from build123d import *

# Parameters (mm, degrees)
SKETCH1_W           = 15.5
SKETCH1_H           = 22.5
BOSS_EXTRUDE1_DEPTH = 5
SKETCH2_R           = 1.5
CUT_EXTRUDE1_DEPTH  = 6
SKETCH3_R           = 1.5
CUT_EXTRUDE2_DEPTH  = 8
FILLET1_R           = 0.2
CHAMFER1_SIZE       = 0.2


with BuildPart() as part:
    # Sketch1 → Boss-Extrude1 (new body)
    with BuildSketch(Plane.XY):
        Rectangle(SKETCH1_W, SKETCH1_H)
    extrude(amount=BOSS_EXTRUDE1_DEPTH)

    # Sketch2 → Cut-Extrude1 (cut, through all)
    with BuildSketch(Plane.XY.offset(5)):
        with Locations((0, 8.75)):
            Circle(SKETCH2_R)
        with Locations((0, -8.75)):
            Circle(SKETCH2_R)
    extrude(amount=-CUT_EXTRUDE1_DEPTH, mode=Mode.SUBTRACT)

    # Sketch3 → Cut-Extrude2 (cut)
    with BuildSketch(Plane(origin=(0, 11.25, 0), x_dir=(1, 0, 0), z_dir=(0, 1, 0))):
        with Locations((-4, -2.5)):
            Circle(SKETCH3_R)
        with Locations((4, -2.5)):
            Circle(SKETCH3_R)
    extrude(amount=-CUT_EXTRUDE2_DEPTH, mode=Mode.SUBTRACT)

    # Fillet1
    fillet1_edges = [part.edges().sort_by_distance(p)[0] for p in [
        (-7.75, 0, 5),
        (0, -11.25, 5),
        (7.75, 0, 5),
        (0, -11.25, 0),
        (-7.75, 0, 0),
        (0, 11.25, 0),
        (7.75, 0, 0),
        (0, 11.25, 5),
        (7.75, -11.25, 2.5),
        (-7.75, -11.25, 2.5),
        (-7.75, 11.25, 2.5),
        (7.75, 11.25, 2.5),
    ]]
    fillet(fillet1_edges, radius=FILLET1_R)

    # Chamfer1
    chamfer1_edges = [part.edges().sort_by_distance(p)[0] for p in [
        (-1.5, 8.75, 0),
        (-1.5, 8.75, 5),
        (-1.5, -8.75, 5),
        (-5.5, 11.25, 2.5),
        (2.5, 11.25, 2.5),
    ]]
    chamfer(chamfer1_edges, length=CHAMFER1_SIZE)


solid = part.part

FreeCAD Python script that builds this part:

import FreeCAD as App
import Part
import Sketcher

V = App.Vector
Q = App.Units.Quantity


def edges_at(feature, points):
    """Names of the edges that pass closest to the given points."""
    edges = feature.Shape.Edges
    near = lambda p: min(range(len(edges)), key=lambda i: edges[i].distToShape(Part.Vertex(*p))[0])
    return sorted({f"Edge{near(p) + 1}" for p in points})

doc = App.newDocument("Part")
body = doc.addObject("PartDesign::Body", "Body")

sketch1 = body.newObject("Sketcher::SketchObject", "Sketch")
sketch1.AttachmentSupport = (doc.getObject("XY_Plane"), [""])
sketch1.MapMode = "FlatFace"
sketch1.addGeometry(Part.LineSegment(V(-7.75, 11.25, 0), V(-7.75, -11.25, 0)), False)
sketch1.addGeometry(Part.LineSegment(V(-7.75, -11.25, 0), V(7.75, -11.25, 0)), False)
sketch1.addGeometry(Part.LineSegment(V(7.75, -11.25, 0), V(7.75, 11.25, 0)), False)
sketch1.addGeometry(Part.LineSegment(V(7.75, 11.25, 0), V(-7.75, 11.25, 0)), False)
sketch1.addConstraint(Sketcher.Constraint("Coincident", 0, 2, 1, 1))
sketch1.addConstraint(Sketcher.Constraint("Coincident", 1, 2, 2, 1))
sketch1.addConstraint(Sketcher.Constraint("Coincident", 2, 2, 3, 1))
sketch1.addConstraint(Sketcher.Constraint("Coincident", 3, 2, 0, 1))
sketch1.addConstraint(Sketcher.Constraint("Vertical", 0))
sketch1.addConstraint(Sketcher.Constraint("Horizontal", 1))
sketch1.addConstraint(Sketcher.Constraint("Vertical", 2))
sketch1.addConstraint(Sketcher.Constraint("Horizontal", 3))
sketch1.addConstraint(Sketcher.Constraint("Symmetric", 0, 2, 2, 2, -1, 1))
sketch1.addConstraint(Sketcher.Constraint("DistanceX", 1, 1, 1, 2, Q("15.5 mm")))
sketch1.addConstraint(Sketcher.Constraint("DistanceY", 0, 2, 0, 1, Q("22.5 mm")))
pad1 = body.newObject("PartDesign::Pad", "Pad")
pad1.Profile = sketch1
pad1.Length = 5

sketch2 = body.newObject("Sketcher::SketchObject", "Sketch001")
sketch2.AttachmentSupport = (doc.getObject("XY_Plane"), [""])
sketch2.MapMode = "FlatFace"
sketch2.AttachmentOffset = App.Placement(V(0, 0, 5), App.Rotation())
sketch2.addGeometry(Part.Circle(V(0, 8.75, 0), V(0, 0, 1), 1.5), False)
sketch2.addGeometry(Part.Circle(V(0, -8.75, 0), V(0, 0, 1), 1.5), False)
sketch2.addConstraint(Sketcher.Constraint("Equal", 0, 1))
sketch2.addConstraint(Sketcher.Constraint("Symmetric", 0, 3, 1, 3, -1, 1))
sketch2.addConstraint(Sketcher.Constraint("PointOnObject", 0, 3, -2))
sketch2.addConstraint(Sketcher.Constraint("Diameter", 0, Q("3 mm")))
sketch2.addConstraint(Sketcher.Constraint("DistanceY", 1, 3, 0, 3, Q("17.5 mm")))
pocket1 = body.newObject("PartDesign::Pocket", "Pocket")
pocket1.Profile = sketch2
pocket1.Type = "ThroughAll"

sketch3 = body.newObject("Sketcher::SketchObject", "Sketch002")
sketch3.AttachmentSupport = (doc.getObject("XZ_Plane"), [""])
sketch3.MapMode = "FlatFace"
sketch3.AttachmentOffset = App.Placement(V(0, 0, -11.25), App.Rotation())
sketch3.addGeometry(Part.Circle(V(-4, 2.5, 0), V(0, 0, 1), 1.5), False)
sketch3.addGeometry(Part.Circle(V(4, 2.5, 0), V(0, 0, 1), 1.5), False)
sketch3.addConstraint(Sketcher.Constraint("Equal", 0, 1))
sketch3.addConstraint(Sketcher.Constraint("Symmetric", 0, 3, 1, 3, -2))
sketch3.addConstraint(Sketcher.Constraint("Diameter", 0, Q("3 mm")))
sketch3.addConstraint(Sketcher.Constraint("DistanceX", 0, 3, -1, 1, Q("4 mm")))
sketch3.addConstraint(Sketcher.Constraint("DistanceY", -1, 1, 0, 3, Q("2.5 mm")))
pocket2 = body.newObject("PartDesign::Pocket", "Pocket001")
pocket2.Profile = sketch3
pocket2.Length = 8
pocket2.Reversed = True
doc.recompute()

fillet = body.newObject("PartDesign::Fillet", "Fillet")
fillet.Base = (pocket2, edges_at(pocket2, [
    (-7.75, 0, 5),
    (0, -11.25, 5),
    (7.75, 0, 5),
    (0, -11.25, 0),
    (-7.75, 0, 0),
    (0, 11.25, 0),
    (7.75, 0, 0),
    (0, 11.25, 5),
    (7.75, -11.25, 2.5),
    (-7.75, -11.25, 2.5),
    (-7.75, 11.25, 2.5),
    (7.75, 11.25, 2.5),
]))
fillet.Radius = 0.2
doc.recompute()

chamfer = body.newObject("PartDesign::Chamfer", "Chamfer")
chamfer.Base = (fillet, edges_at(fillet, [
    (-1.5, 8.75, 0),
    (-1.5, 8.75, 5),
    (-1.5, -8.75, 5),
    (-5.5, 11.25, 2.5),
    (2.5, 11.25, 2.5),
]))
chamfer.Size = 0.2

doc.recompute()
